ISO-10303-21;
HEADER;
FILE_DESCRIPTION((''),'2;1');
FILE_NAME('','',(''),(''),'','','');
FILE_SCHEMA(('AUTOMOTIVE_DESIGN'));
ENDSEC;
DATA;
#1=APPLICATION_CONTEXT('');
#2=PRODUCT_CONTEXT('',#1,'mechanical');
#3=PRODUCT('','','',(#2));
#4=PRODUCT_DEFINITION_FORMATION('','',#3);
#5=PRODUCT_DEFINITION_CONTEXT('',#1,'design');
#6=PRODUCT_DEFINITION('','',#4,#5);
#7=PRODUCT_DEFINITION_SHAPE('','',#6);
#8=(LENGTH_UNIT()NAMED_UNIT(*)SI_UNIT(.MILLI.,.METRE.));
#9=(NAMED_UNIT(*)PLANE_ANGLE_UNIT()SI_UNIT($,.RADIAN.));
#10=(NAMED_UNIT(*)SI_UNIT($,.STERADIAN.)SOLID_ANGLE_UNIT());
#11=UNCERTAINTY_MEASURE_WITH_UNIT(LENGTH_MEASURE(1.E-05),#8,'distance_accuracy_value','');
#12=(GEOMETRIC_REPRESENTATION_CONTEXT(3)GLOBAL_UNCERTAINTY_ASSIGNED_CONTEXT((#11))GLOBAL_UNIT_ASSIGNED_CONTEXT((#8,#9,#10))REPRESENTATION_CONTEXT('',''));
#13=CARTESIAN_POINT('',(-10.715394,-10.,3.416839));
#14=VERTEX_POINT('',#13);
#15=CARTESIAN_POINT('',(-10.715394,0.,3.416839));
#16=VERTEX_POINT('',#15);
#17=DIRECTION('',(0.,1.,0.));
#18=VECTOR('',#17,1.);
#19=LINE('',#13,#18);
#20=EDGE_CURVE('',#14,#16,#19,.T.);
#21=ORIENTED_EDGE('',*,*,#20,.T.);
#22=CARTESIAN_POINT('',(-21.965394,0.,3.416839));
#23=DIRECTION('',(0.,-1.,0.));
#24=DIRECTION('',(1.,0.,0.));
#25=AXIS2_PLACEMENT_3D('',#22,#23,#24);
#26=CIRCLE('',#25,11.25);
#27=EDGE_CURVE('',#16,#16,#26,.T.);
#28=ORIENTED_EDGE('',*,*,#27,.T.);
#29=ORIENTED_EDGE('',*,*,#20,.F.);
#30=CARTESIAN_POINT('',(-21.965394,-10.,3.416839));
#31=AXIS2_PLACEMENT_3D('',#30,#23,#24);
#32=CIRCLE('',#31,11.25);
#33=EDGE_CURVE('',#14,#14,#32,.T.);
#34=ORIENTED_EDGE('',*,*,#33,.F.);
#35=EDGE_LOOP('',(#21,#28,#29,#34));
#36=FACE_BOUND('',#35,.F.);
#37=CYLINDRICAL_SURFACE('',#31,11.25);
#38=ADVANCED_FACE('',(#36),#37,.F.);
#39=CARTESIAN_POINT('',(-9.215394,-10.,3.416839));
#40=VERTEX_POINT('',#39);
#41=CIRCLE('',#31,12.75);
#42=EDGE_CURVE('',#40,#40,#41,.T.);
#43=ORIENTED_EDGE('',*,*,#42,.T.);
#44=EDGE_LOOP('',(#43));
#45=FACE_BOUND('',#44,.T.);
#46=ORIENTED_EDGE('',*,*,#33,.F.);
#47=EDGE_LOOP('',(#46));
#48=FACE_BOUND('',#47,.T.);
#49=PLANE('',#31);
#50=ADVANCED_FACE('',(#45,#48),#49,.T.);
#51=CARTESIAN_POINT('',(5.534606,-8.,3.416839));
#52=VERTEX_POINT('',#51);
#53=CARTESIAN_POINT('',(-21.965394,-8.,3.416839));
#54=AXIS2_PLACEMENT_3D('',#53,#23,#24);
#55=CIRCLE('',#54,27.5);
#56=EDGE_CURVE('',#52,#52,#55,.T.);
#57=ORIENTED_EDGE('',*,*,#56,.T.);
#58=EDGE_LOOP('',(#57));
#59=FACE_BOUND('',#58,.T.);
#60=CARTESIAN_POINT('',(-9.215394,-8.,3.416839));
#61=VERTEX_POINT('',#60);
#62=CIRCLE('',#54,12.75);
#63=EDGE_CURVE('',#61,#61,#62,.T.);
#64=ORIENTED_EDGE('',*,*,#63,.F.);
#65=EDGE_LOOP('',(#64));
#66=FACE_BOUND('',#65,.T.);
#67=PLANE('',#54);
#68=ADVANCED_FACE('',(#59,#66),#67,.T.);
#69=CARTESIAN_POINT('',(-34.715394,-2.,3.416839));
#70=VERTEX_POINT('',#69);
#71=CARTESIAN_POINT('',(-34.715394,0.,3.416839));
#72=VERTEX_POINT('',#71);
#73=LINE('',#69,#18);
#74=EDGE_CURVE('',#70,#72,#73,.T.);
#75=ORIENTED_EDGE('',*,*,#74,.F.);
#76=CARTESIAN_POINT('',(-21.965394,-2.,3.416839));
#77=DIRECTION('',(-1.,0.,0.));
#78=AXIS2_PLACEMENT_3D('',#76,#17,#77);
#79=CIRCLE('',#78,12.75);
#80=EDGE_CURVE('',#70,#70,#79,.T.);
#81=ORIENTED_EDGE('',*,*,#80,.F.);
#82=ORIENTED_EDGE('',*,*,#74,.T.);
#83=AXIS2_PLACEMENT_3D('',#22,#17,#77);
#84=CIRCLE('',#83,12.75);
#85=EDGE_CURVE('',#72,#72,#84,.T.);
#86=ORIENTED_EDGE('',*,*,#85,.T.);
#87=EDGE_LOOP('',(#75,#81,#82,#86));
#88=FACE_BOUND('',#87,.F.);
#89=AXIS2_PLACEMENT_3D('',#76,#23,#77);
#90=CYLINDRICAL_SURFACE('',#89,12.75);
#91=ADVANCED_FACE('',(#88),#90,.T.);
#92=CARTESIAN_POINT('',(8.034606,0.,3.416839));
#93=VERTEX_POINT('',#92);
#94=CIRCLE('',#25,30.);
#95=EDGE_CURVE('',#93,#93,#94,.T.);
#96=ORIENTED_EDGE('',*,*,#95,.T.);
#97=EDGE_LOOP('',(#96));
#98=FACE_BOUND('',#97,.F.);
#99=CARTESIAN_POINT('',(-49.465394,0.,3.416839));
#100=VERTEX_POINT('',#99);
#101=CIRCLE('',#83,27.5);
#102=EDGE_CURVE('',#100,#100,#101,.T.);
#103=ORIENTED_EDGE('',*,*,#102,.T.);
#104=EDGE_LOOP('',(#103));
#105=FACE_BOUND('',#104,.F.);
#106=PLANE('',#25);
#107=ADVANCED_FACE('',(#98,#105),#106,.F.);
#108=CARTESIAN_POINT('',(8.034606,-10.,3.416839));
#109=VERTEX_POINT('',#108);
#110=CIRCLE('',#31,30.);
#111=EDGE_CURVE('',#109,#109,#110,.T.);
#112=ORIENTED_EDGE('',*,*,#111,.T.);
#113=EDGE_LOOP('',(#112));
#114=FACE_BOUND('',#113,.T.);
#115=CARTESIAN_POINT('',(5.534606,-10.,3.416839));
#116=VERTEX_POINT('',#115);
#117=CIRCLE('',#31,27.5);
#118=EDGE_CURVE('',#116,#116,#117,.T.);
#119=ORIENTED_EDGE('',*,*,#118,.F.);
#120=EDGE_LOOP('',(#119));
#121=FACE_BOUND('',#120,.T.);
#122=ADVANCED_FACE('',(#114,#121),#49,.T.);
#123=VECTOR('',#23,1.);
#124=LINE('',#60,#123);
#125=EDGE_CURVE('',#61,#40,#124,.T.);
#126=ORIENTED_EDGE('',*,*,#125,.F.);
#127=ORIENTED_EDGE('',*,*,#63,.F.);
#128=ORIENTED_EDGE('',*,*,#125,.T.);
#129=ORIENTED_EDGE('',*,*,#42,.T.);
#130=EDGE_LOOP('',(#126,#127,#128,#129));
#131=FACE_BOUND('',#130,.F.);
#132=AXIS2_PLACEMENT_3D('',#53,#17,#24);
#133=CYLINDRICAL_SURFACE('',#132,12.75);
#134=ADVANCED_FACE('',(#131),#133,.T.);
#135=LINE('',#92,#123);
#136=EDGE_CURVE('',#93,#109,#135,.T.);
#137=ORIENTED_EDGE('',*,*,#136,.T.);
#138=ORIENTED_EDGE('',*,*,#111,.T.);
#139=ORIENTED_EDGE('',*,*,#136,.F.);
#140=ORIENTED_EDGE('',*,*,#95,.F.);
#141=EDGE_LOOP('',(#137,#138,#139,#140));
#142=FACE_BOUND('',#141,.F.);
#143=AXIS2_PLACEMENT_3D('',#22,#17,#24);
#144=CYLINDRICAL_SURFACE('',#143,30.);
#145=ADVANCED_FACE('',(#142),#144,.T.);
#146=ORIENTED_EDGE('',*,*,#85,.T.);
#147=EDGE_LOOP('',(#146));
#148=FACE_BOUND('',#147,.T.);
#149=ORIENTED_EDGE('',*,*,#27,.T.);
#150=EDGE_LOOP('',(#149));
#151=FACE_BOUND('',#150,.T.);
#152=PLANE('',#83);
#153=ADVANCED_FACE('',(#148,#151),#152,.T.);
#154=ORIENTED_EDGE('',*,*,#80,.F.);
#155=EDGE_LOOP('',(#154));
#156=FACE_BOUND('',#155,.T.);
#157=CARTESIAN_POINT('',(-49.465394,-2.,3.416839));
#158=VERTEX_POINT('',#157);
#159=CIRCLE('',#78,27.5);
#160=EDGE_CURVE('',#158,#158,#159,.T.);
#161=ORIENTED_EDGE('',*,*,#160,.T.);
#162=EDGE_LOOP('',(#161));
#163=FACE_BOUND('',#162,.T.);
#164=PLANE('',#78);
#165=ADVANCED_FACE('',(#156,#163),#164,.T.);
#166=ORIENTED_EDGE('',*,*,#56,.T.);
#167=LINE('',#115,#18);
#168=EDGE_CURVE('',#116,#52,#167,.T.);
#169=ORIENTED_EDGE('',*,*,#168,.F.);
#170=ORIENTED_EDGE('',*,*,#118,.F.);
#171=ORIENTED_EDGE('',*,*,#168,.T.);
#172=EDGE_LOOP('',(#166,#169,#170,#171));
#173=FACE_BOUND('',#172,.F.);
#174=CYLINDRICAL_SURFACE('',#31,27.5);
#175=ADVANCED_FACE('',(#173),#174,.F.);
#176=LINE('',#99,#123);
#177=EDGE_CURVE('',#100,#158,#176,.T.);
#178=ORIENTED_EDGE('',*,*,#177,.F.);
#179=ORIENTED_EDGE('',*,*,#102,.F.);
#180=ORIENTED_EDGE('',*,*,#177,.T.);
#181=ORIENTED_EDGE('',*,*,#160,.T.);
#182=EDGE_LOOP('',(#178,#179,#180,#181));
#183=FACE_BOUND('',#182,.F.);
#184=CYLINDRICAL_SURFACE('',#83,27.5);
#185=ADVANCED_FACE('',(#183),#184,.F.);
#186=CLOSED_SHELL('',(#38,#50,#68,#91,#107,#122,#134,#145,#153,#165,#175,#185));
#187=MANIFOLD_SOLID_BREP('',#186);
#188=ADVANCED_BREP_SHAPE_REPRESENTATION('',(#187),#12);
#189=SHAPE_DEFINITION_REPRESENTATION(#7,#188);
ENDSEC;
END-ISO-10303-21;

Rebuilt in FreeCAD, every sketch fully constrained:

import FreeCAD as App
import Part
import Sketcher

doc = App.newDocument("Part")
body = doc.addObject("PartDesign::Body", "Body")

# Sketch on XZ plane
sketch1 = body.newObject("Sketcher::SketchObject", "Sketch")
sketch1.AttachmentSupport = (doc.getObject("XZ_Plane"), [""])
sketch1.MapMode = "FlatFace"
sketch1.addGeometry(Part.Circle(App.Vector(-22, 3, 0), App.Vector(0, 0, 1), 30), False)
sketch1.addConstraint(Sketcher.Constraint("Diameter", 0, 60.0))
sketch1.addConstraint(Sketcher.Constraint("DistanceY", -1, 1, 0, 3, 3.416839))
sketch1.addConstraint(Sketcher.Constraint("DistanceX", 0, 3, -1, 1, 21.965394))
pad1 = body.newObject("PartDesign::Pad", "Pad")
pad1.Profile = sketch1
pad1.Length = 10

# Sketch on XZ plane
sketch2 = body.newObject("Sketcher::SketchObject", "Sketch001")
sketch2.AttachmentSupport = (doc.getObject("XZ_Plane"), [""])
sketch2.MapMode = "FlatFace"
sketch2.AttachmentOffset = App.Placement(App.Vector(0, 0, 10), App.Rotation())
sketch2.addGeometry(Part.Circle(App.Vector(-22, 3, 0), App.Vector(0, 0, 1), 28), False)
sketch2.addConstraint(Sketcher.Constraint("Diameter", 0, 55.0))
sketch2.addConstraint(Sketcher.Constraint("DistanceY", -1, 1, 0, 3, 3.416839))
sketch2.addConstraint(Sketcher.Constraint("DistanceX", 0, 3, -1, 1, 21.965394))
pocket1 = body.newObject("PartDesign::Pocket", "Pocket")
pocket1.Profile = sketch2
pocket1.Length = 2

# Sketch on XZ plane
sketch3 = body.newObject("Sketcher::SketchObject", "Sketch002")
sketch3.AttachmentSupport = (doc.getObject("XZ_Plane"), [""])
sketch3.MapMode = "FlatFace"
sketch3.addGeometry(Part.Circle(App.Vector(-22, 3, 0), App.Vector(0, 0, 1), 28), False)
sketch3.addConstraint(Sketcher.Constraint("Diameter", 0, 55.0))
sketch3.addConstraint(Sketcher.Constraint("DistanceY", -1, 1, 0, 3, 3.416839))
sketch3.addConstraint(Sketcher.Constraint("DistanceX", 0, 3, -1, 1, 21.965394))
pocket2 = body.newObject("PartDesign::Pocket", "Pocket001")
pocket2.Profile = sketch3
pocket2.Length = 2
pocket2.Reversed = True

# Sketch on XZ plane
sketch4 = body.newObject("Sketcher::SketchObject", "Sketch003")
sketch4.AttachmentSupport = (doc.getObject("XZ_Plane"), [""])
sketch4.MapMode = "FlatFace"
sketch4.AttachmentOffset = App.Placement(App.Vector(0, 0, 2), App.Rotation())
sketch4.addGeometry(Part.Circle(App.Vector(-22, 3, 0), App.Vector(0, 0, 1), 13), False)
sketch4.addConstraint(Sketcher.Constraint("Diameter", 0, 25.5))
sketch4.addConstraint(Sketcher.Constraint("DistanceY", -1, 1, 0, 3, 3.416839))
sketch4.addConstraint(Sketcher.Constraint("DistanceX", 0, 3, -1, 1, 21.965394))
pad2 = body.newObject("PartDesign::Pad", "Pad001")
pad2.Profile = sketch4
pad2.Length = 2
pad2.Reversed = True

# Sketch on XZ plane
sketch5 = body.newObject("Sketcher::SketchObject", "Sketch004")
sketch5.AttachmentSupport = (doc.getObject("XZ_Plane"), [""])
sketch5.MapMode = "FlatFace"
sketch5.AttachmentOffset = App.Placement(App.Vector(0, 0, 8), App.Rotation())
sketch5.addGeometry(Part.Circle(App.Vector(-22, 3, 0), App.Vector(0, 0, 1), 13), False)
sketch5.addConstraint(Sketcher.Constraint("Diameter", 0, 25.5))
sketch5.addConstraint(Sketcher.Constraint("DistanceY", -1, 1, 0, 3, 3.416839))
sketch5.addConstraint(Sketcher.Constraint("DistanceX", 0, 3, -1, 1, 21.965394))
pad3 = body.newObject("PartDesign::Pad", "Pad002")
pad3.Profile = sketch5
pad3.Length = 2

# Sketch on XZ plane
sketch6 = body.newObject("Sketcher::SketchObject", "Sketch005")
sketch6.AttachmentSupport = (doc.getObject("XZ_Plane"), [""])
sketch6.MapMode = "FlatFace"
sketch6.AttachmentOffset = App.Placement(App.Vector(0, 0, 10), App.Rotation())
sketch6.addGeometry(Part.Circle(App.Vector(-22, 3, 0), App.Vector(0, 0, 1), 11), False)
sketch6.addConstraint(Sketcher.Constraint("Diameter", 0, 22.5))
sketch6.addConstraint(Sketcher.Constraint("DistanceY", -1, 1, 0, 3, 3.416839))
sketch6.addConstraint(Sketcher.Constraint("DistanceX", 0, 3, -1, 1, 21.965394))
pocket3 = body.newObject("PartDesign::Pocket", "Pocket002")
pocket3.Profile = sketch6
pocket3.Type = "ThroughAll"

doc.recompute()
